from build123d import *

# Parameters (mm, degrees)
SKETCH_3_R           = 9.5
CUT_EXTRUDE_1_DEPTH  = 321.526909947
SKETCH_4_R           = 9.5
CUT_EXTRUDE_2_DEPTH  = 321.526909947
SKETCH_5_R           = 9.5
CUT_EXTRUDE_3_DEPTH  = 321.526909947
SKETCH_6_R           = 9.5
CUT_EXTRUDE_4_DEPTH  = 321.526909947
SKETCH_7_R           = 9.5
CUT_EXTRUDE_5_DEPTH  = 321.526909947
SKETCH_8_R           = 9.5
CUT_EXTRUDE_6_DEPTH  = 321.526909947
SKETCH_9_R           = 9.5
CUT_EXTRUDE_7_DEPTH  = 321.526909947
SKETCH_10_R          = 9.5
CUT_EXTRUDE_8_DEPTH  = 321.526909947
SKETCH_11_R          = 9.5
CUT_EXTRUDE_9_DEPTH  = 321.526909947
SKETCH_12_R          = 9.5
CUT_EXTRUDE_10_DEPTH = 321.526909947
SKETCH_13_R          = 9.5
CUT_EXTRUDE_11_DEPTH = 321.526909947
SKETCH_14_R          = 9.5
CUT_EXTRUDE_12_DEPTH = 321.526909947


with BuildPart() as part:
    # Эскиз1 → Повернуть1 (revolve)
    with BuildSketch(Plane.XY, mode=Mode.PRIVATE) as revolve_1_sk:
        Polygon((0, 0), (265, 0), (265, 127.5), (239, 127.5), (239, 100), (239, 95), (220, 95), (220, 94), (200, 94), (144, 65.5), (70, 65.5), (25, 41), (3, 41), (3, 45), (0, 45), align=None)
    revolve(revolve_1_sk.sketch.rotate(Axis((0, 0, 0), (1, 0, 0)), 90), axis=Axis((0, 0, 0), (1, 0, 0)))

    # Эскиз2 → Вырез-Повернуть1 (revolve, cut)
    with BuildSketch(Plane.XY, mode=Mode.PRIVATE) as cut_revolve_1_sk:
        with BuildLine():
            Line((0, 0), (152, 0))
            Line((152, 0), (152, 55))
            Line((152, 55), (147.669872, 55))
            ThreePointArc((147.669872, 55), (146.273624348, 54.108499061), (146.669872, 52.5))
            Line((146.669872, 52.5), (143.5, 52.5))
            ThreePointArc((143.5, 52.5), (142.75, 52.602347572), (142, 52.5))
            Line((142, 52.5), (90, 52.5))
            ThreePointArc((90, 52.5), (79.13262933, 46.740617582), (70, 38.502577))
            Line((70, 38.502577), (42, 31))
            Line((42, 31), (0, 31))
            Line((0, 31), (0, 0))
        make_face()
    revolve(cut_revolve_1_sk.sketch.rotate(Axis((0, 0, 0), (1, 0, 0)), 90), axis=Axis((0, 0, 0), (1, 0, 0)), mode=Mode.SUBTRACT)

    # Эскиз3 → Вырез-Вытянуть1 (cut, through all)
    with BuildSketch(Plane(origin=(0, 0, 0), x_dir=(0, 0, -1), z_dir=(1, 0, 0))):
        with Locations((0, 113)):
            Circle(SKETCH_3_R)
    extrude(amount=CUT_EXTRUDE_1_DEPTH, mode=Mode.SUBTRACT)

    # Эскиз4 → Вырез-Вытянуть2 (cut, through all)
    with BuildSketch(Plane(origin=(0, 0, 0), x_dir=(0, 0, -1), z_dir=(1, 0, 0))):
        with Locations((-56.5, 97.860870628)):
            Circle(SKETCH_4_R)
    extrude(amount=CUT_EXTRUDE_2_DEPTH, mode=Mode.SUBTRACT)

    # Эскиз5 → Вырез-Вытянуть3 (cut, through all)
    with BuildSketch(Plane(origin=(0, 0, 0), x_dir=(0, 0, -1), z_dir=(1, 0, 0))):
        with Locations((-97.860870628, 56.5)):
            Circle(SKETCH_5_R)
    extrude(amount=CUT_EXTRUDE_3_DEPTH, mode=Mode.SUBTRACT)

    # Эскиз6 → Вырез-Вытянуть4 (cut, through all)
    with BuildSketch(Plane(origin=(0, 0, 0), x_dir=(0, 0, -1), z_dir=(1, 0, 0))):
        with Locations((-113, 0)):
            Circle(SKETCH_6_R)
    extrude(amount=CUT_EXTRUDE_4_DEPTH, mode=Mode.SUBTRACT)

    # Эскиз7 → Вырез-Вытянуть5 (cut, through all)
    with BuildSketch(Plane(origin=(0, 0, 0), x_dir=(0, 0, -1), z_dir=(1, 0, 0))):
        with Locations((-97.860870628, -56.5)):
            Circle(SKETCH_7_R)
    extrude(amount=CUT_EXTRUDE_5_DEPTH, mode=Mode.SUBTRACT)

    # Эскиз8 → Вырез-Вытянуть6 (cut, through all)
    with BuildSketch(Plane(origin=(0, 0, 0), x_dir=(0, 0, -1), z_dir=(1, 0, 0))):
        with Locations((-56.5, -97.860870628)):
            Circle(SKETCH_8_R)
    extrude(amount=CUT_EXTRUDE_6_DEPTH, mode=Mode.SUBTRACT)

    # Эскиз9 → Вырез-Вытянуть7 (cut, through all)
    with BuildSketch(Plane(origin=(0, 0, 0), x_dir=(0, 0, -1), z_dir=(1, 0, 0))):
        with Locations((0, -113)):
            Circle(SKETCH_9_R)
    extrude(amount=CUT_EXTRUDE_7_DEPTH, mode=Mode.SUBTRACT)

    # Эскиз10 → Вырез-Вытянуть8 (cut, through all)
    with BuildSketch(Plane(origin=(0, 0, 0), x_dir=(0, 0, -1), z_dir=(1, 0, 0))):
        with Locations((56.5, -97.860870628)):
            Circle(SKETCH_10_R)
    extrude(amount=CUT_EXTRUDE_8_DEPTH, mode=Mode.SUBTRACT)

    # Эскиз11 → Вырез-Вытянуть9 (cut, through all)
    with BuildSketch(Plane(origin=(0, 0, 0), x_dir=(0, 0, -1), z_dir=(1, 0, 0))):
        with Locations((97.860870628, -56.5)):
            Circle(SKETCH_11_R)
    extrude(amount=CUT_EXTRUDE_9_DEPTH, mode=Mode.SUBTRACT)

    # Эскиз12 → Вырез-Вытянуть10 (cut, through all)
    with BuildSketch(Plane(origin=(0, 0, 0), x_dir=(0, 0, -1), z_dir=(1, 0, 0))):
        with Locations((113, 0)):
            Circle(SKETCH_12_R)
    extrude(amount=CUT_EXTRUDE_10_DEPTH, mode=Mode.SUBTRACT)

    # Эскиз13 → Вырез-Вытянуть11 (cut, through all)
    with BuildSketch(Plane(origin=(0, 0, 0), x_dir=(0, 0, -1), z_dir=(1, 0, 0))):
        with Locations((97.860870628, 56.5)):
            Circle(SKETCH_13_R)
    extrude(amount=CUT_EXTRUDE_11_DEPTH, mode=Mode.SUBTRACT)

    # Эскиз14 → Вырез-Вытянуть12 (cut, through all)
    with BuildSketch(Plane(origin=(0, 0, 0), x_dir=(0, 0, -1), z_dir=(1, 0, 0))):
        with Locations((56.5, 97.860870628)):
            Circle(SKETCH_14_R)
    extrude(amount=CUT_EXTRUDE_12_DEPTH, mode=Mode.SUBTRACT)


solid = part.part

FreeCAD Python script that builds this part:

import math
import FreeCAD as App
import Part
import Sketcher
from FreeCAD import Vector
Q = App.Units.Quantity


def add_polygon(sketch, points):
    """Adds a closed chain of lines whose ends are joined by coincident constraints."""
    first, n = sketch.GeometryCount, len(points)
    for a, b in zip(points, points[1:] + points[:1]):
        sketch.addGeometry(Part.LineSegment(App.Vector(*a, 0), App.Vector(*b, 0)), False)
    for i in range(n):
        sketch.addConstraint(Sketcher.Constraint("Coincident", first + i, 2, first + (i + 1) % n, 1))

doc = App.newDocument("Part")
body = doc.addObject("PartDesign::Body", "Body")

sketch1 = body.newObject("Sketcher::SketchObject", "Sketch")
sketch1.AttachmentSupport = (doc.getObject("XY_Plane"), [""])
sketch1.MapMode = "FlatFace"
add_polygon(sketch1, [(0, 0), (265, 0), (265, 127.5), (239, 127.5), (239, 95), (220, 95), (220, 94), (200, 94), (144, 65.5), (70, 65.5), (25, 41), (3, 41), (3, 45), (0, 45)])
sketch1.addConstraint([
    Sketcher.Constraint("Horizontal", 0),
    Sketcher.Constraint("Vertical", 1),
    Sketcher.Constraint("Horizontal", 2),
    Sketcher.Constraint("Vertical", 3),
    Sketcher.Constraint("Horizontal", 4),
    Sketcher.Constraint("Vertical", 5),
    Sketcher.Constraint("Horizontal", 6),
    Sketcher.Constraint("Horizontal", 8),
    Sketcher.Constraint("Horizontal", 10),
    Sketcher.Constraint("Vertical", 11),
    Sketcher.Constraint("Horizontal", 12),
    Sketcher.Constraint("Vertical", 13),
    Sketcher.Constraint("Coincident", 13, 2, -1, 1),
    Sketcher.Constraint("DistanceX", 0, 1, 0, 2, 265.0),
    Sketcher.Constraint("DistanceX", 2, 2, 2, 1, 26.0),
    Sketcher.Constraint("DistanceX", 4, 2, 4, 1, 19.0),
    Sketcher.Constraint("DistanceX", 6, 2, 6, 1, 20.0),
    Sketcher.Constraint("DistanceX", 8, 2, 8, 1, 74.0),
    Sketcher.Constraint("DistanceX", 10, 2, 10, 1, 22.0),
    Sketcher.Constraint("DistanceX", 12, 2, 12, 1, 3.0),
    Sketcher.Constraint("DistanceY", 5, 2, 5, 1, 1.0),
    Sketcher.Constraint("DistanceY", 11, 1, 11, 2, 4.0),
    Sketcher.Constraint("DistanceY", 13, 2, 13, 1, 45.0),
    Sketcher.Constraint("DistanceY", 1, 1, 1, 2, 127.5),
    Sketcher.Constraint("DistanceY", 3, 2, 3, 1, 32.5),
    Sketcher.Constraint("DistanceX", -1, 1, 7, 2, 144.0),
    Sketcher.Constraint("DistanceY", 7, 2, 2, 2, 62.0),
])
revolution = body.newObject("PartDesign::Revolution", "Revolution")
revolution.Profile = sketch1
revolution.ReferenceAxis = (sketch1, ["H_Axis"])
revolution.Angle = 360

sketch2 = body.newObject("Sketcher::SketchObject", "Sketch001")
sketch2.AttachmentSupport = (doc.getObject("XY_Plane"), [""])
sketch2.MapMode = "FlatFace"
sketch2.addGeometry([
    Part.LineSegment(Vector(0, 0, 0), Vector(152, 0, 0)),
    Part.LineSegment(Vector(152, 0, 0), Vector(152, 55, 0)),
    Part.LineSegment(Vector(152, 55, 0), Vector(147.7, 55, 0)),
    Part.ArcOfCircle(Part.Circle(Vector(147.6, 53.6, 0), Vector(0, 0, 1), 1.4), math.radians(87), math.radians(229)),
    Part.LineSegment(Vector(146.7, 52.5, 0), Vector(143.5, 52.5, 0)),
    Part.ArcOfCircle(Part.Circle(Vector(142.8, 49.8, 0), Vector(0, 0, 1), 2.8), math.radians(74), math.radians(106)),
    Part.LineSegment(Vector(142, 52.5, 0), Vector(90, 52.5, 0)),
    Part.ArcOfCircle(Part.Circle(Vector(107.8, 5.8, 0), Vector(0, 0, 1), 50), math.radians(111), math.radians(139)),
    Part.LineSegment(Vector(70, 38.5, 0), Vector(42, 31, 0)),
    Part.LineSegment(Vector(42, 31, 0), Vector(0, 31, 0)),
    Part.LineSegment(Vector(0, 31, 0), Vector(0, 0, 0)),
], False)
sketch2.addConstraint([
    Sketcher.Constraint("Coincident", 0, 2, 1, 1),
    Sketcher.Constraint("Coincident", 1, 2, 2, 1),
    Sketcher.Constraint("Coincident", 2, 2, 3, 1),
    Sketcher.Constraint("Coincident", 3, 2, 4, 1),
    Sketcher.Constraint("Coincident", 4, 2, 5, 1),
    Sketcher.Constraint("Coincident", 5, 2, 6, 1),
    Sketcher.Constraint("Coincident", 6, 2, 7, 1),
    Sketcher.Constraint("Coincident", 7, 2, 8, 1),
    Sketcher.Constraint("Coincident", 8, 2, 9, 1),
    Sketcher.Constraint("Coincident", 9, 2, 10, 1),
    Sketcher.Constraint("Coincident", 10, 2, 0, 1),
    Sketcher.Constraint("Horizontal", 0),
    Sketcher.Constraint("Vertical", 1),
    Sketcher.Constraint("Horizontal", 2),
    Sketcher.Constraint("Horizontal", 4),
    Sketcher.Constraint("Horizontal", 6),
    Sketcher.Constraint("Horizontal", 9),
    Sketcher.Constraint("Vertical", 10),
    Sketcher.Constraint("Coincident", 10, 2, -1, 1),
    Sketcher.Constraint("Horizontal", 4, 2, 5, 2),
    Sketcher.Constraint("Radius", 7, 49.999998),
    Sketcher.Constraint("DistanceX", 0, 1, 0, 2, 152.0),
    Sketcher.Constraint("DistanceX", 6, 2, 6, 1, 52.0),
    Sketcher.Constraint("DistanceX", 9, 2, 9, 1, 42.0),
    Sketcher.Constraint("DistanceY", 1, 1, 1, 2, 55.0),
    Sketcher.Constraint("DistanceY", 10, 2, 10, 1, 31.0),
    Sketcher.Constraint("Angle", 8, Q("-165.000001 deg")),
    Sketcher.Constraint("DistanceX", -1, 1, 5, 2, 142.0),
    Sketcher.Constraint("DistanceX", -1, 1, 7, 2, 70.0),
    Sketcher.Constraint("DistanceX", 3, 2, 2, 2, 1.0),
    Sketcher.Constraint("DistanceY", -1, 1, 3, 2, 52.5),
    Sketcher.Constraint("DistanceX", -1, 1, 4, 2, 143.5),
    Sketcher.Constraint("Radius", 3, 1.421483),
    Sketcher.Constraint("Radius", 5, 2.799163),
    Sketcher.Constraint("DistanceX", 2, 2, 2, 1, 4.330128),
])
groove = body.newObject("PartDesign::Groove", "Groove")
groove.Profile = sketch2
groove.ReferenceAxis = (sketch2, ["H_Axis"])
groove.Angle = 360

sketch3 = body.newObject("Sketcher::SketchObject", "Sketch002")
sketch3.AttachmentSupport = (doc.getObject("YZ_Plane"), [""])
sketch3.MapMode = "FlatFace"
sketch3.addGeometry(Part.Circle(Vector(113, 0, 0), Vector(0, 0, 1), 10), False)
sketch3.addConstraint([
    Sketcher.Constraint("PointOnObject", 0, 3, -1),
    Sketcher.Constraint("Diameter", 0, 19.0),
    Sketcher.Constraint("DistanceX", -1, 1, 0, 3, 113.0),
])
pocket1 = body.newObject("PartDesign::Pocket", "Pocket")
pocket1.Profile = sketch3
pocket1.Type = "ThroughAll"
pocket1.Reversed = True

sketch4 = body.newObject("Sketcher::SketchObject", "Sketch003")
sketch4.AttachmentSupport = (doc.getObject("YZ_Plane"), [""])
sketch4.MapMode = "FlatFace"
sketch4.addGeometry(Part.Circle(Vector(98, 56, 0), Vector(0, 0, 1), 10), False)
sketch4.addConstraint([
    Sketcher.Constraint("Diameter", 0, 19.0),
    Sketcher.Constraint("DistanceY", -1, 1, 0, 3, 56.5),
    Sketcher.Constraint("DistanceX", -1, 1, 0, 3, 97.860871),
])
pocket2 = body.newObject("PartDesign::Pocket", "Pocket001")
pocket2.Profile = sketch4
pocket2.Type = "ThroughAll"
pocket2.Reversed = True

sketch5 = body.newObject("Sketcher::SketchObject", "Sketch004")
sketch5.AttachmentSupport = (doc.getObject("YZ_Plane"), [""])
sketch5.MapMode = "FlatFace"
sketch5.addGeometry(Part.Circle(Vector(56, 98, 0), Vector(0, 0, 1), 10), False)
sketch5.addConstraint([
    Sketcher.Constraint("Diameter", 0, 19.0),
    Sketcher.Constraint("DistanceX", -1, 1, 0, 3, 56.5),
    Sketcher.Constraint("DistanceY", -1, 1, 0, 3, 97.860871),
])
pocket3 = body.newObject("PartDesign::Pocket", "Pocket002")
pocket3.Profile = sketch5
pocket3.Type = "ThroughAll"
pocket3.Reversed = True

sketch6 = body.newObject("Sketcher::SketchObject", "Sketch005")
sketch6.AttachmentSupport = (doc.getObject("YZ_Plane"), [""])
sketch6.MapMode = "FlatFace"
sketch6.addGeometry(Part.Circle(Vector(0, 113, 0), Vector(0, 0, 1), 10), False)
sketch6.addConstraint([
    Sketcher.Constraint("PointOnObject", 0, 3, -2),
    Sketcher.Constraint("Diameter", 0, 19.0),
    Sketcher.Constraint("DistanceY", -1, 1, 0, 3, 113.0),
])
pocket4 = body.newObject("PartDesign::Pocket", "Pocket003")
pocket4.Profile = sketch6
pocket4.Type = "ThroughAll"
pocket4.Reversed = True

sketch7 = body.newObject("Sketcher::SketchObject", "Sketch006")
sketch7.AttachmentSupport = (doc.getObject("YZ_Plane"), [""])
sketch7.MapMode = "FlatFace"
sketch7.addGeometry(Part.Circle(Vector(-56, 98, 0), Vector(0, 0, 1), 10), False)
sketch7.addConstraint([
    Sketcher.Constraint("Diameter", 0, 19.0),
    Sketcher.Constraint("DistanceX", 0, 3, -1, 1, 56.5),
    Sketcher.Constraint("DistanceY", -1, 1, 0, 3, 97.860871),
])
pocket5 = body.newObject("PartDesign::Pocket", "Pocket004")
pocket5.Profile = sketch7
pocket5.Type = "ThroughAll"
pocket5.Reversed = True

sketch8 = body.newObject("Sketcher::SketchObject", "Sketch007")
sketch8.AttachmentSupport = (doc.getObject("YZ_Plane"), [""])
sketch8.MapMode = "FlatFace"
sketch8.addGeometry(Part.Circle(Vector(-98, 56, 0), Vector(0, 0, 1), 10), False)
sketch8.addConstraint([
    Sketcher.Constraint("Diameter", 0, 19.0),
    Sketcher.Constraint("DistanceY", -1, 1, 0, 3, 56.5),
    Sketcher.Constraint("DistanceX", 0, 3, -1, 1, 97.860871),
])
pocket6 = body.newObject("PartDesign::Pocket", "Pocket005")
pocket6.Profile = sketch8
pocket6.Type = "ThroughAll"
pocket6.Reversed = True

sketch9 = body.newObject("Sketcher::SketchObject", "Sketch008")
sketch9.AttachmentSupport = (doc.getObject("YZ_Plane"), [""])
sketch9.MapMode = "FlatFace"
sketch9.addGeometry(Part.Circle(Vector(-113, 0, 0), Vector(0, 0, 1), 10), False)
sketch9.addConstraint([
    Sketcher.Constraint("PointOnObject", 0, 3, -1),
    Sketcher.Constraint("Diameter", 0, 19.0),
    Sketcher.Constraint("DistanceX", 0, 3, -1, 1, 113.0),
])
pocket7 = body.newObject("PartDesign::Pocket", "Pocket006")
pocket7.Profile = sketch9
pocket7.Type = "ThroughAll"
pocket7.Reversed = True

sketch10 = body.newObject("Sketcher::SketchObject", "Sketch009")
sketch10.AttachmentSupport = (doc.getObject("YZ_Plane"), [""])
sketch10.MapMode = "FlatFace"
sketch10.addGeometry(Part.Circle(Vector(-98, -56, 0), Vector(0, 0, 1), 10), False)
sketch10.addConstraint([
    Sketcher.Constraint("Diameter", 0, 19.0),
    Sketcher.Constraint("DistanceY", 0, 3, -1, 1, 56.5),
    Sketcher.Constraint("DistanceX", 0, 3, -1, 1, 97.860871),
])
pocket8 = body.newObject("PartDesign::Pocket", "Pocket007")
pocket8.Profile = sketch10
pocket8.Type = "ThroughAll"
pocket8.Reversed = True

sketch11 = body.newObject("Sketcher::SketchObject", "Sketch010")
sketch11.AttachmentSupport = (doc.getObject("YZ_Plane"), [""])
sketch11.MapMode = "FlatFace"
sketch11.addGeometry(Part.Circle(Vector(-56, -98, 0), Vector(0, 0, 1), 10), False)
sketch11.addConstraint([
    Sketcher.Constraint("Diameter", 0, 19.0),
    Sketcher.Constraint("DistanceX", 0, 3, -1, 1, 56.5),
    Sketcher.Constraint("DistanceY", 0, 3, -1, 1, 97.860871),
])
pocket9 = body.newObject("PartDesign::Pocket", "Pocket008")
pocket9.Profile = sketch11
pocket9.Type = "ThroughAll"
pocket9.Reversed = True

sketch12 = body.newObject("Sketcher::SketchObject", "Sketch011")
sketch12.AttachmentSupport = (doc.getObject("YZ_Plane"), [""])
sketch12.MapMode = "FlatFace"
sketch12.addGeometry(Part.Circle(Vector(0, -113, 0), Vector(0, 0, 1), 10), False)
sketch12.addConstraint([
    Sketcher.Constraint("PointOnObject", 0, 3, -2),
    Sketcher.Constraint("Diameter", 0, 19.0),
    Sketcher.Constraint("DistanceY", 0, 3, -1, 1, 113.0),
])
pocket10 = body.newObject("PartDesign::Pocket", "Pocket009")
pocket10.Profile = sketch12
pocket10.Type = "ThroughAll"
pocket10.Reversed = True

sketch13 = body.newObject("Sketcher::SketchObject", "Sketch012")
sketch13.AttachmentSupport = (doc.getObject("YZ_Plane"), [""])
sketch13.MapMode = "FlatFace"
sketch13.addGeometry(Part.Circle(Vector(56, -98, 0), Vector(0, 0, 1), 10), False)
sketch13.addConstraint([
    Sketcher.Constraint("Diameter", 0, 19.0),
    Sketcher.Constraint("DistanceX", -1, 1, 0, 3, 56.5),
    Sketcher.Constraint("DistanceY", 0, 3, -1, 1, 97.860871),
])
pocket11 = body.newObject("PartDesign::Pocket", "Pocket010")
pocket11.Profile = sketch13
pocket11.Type = "ThroughAll"
pocket11.Reversed = True

sketch14 = body.newObject("Sketcher::SketchObject", "Sketch013")
sketch14.AttachmentSupport = (doc.getObject("YZ_Plane"), [""])
sketch14.MapMode = "FlatFace"
sketch14.addGeometry(Part.Circle(Vector(98, -56, 0), Vector(0, 0, 1), 10), False)
sketch14.addConstraint([
    Sketcher.Constraint("Diameter", 0, 19.0),
    Sketcher.Constraint("DistanceY", 0, 3, -1, 1, 56.5),
    Sketcher.Constraint("DistanceX", -1, 1, 0, 3, 97.860871),
])
pocket12 = body.newObject("PartDesign::Pocket", "Pocket011")
pocket12.Profile = sketch14
pocket12.Type = "ThroughAll"
pocket12.Reversed = True

doc.recompute()
